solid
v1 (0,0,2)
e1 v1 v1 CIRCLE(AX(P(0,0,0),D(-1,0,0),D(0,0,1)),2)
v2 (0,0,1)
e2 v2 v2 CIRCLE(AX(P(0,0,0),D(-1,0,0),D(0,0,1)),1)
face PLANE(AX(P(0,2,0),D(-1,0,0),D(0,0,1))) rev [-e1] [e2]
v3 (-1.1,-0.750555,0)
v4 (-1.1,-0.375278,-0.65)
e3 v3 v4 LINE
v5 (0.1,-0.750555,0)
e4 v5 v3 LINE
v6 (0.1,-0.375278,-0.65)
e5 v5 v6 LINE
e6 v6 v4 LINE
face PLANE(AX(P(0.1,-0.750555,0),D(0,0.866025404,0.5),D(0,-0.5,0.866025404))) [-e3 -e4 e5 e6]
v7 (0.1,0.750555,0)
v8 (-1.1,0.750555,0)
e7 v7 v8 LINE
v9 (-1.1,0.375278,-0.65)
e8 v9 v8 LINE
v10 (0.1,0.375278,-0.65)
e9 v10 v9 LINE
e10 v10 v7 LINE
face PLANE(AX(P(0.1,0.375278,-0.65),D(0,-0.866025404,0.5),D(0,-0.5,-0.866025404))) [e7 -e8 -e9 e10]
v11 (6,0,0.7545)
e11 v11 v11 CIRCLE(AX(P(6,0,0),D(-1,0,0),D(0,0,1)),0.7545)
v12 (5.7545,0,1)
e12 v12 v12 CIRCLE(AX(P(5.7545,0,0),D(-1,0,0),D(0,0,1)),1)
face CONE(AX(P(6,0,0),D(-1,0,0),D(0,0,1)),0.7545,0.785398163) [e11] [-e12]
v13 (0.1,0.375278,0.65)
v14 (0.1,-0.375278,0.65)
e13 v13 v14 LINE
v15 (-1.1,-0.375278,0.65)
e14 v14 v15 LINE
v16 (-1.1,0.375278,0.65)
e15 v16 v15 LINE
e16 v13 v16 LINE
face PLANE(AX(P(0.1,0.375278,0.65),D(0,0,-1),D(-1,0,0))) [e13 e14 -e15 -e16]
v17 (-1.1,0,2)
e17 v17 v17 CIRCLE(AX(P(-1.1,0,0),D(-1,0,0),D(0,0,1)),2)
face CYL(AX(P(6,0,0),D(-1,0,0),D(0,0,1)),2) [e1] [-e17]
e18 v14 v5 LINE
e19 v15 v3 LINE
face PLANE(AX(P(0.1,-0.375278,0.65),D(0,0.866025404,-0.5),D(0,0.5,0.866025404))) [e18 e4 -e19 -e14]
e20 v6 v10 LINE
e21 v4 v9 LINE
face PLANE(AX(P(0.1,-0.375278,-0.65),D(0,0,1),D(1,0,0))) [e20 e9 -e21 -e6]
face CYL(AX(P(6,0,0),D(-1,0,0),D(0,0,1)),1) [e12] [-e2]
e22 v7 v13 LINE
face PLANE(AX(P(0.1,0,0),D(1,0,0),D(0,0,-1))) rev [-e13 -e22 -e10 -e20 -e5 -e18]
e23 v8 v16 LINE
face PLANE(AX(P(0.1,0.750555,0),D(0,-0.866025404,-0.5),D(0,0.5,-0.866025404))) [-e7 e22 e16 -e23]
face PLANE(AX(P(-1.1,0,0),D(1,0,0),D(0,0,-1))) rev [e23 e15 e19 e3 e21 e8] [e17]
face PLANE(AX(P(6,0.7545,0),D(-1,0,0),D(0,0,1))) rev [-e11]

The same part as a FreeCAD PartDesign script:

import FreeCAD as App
import Part
import Sketcher

V = App.Vector
Q = App.Units.Quantity

doc = App.newDocument("Part")
body = doc.addObject("PartDesign::Body", "Body")

# Sketch on XY plane
sketch1 = body.newObject("Sketcher::SketchObject", "Sketch")
sketch1.AttachmentSupport = (doc.getObject("XY_Plane"), [""])
sketch1.MapMode = "FlatFace"
sketch1.addGeometry([
    Part.LineSegment(V(-1.1, 2, 0), V(-1.1, 0, 0)),  # 0
    Part.LineSegment(V(-1.1, 0, 0), V(6, 0, 0)),  # 1
    Part.LineSegment(V(6, 0, 0), V(6, 0.75, 0)),  # 2
    Part.LineSegment(V(6, 0.75, 0), V(5.75, 1, 0)),  # 3
    Part.LineSegment(V(5.75, 1, 0), V(0, 1, 0)),  # 4
    Part.LineSegment(V(0, 1, 0), V(0, 2, 0)),  # 5
    Part.LineSegment(V(0, 2, 0), V(-1.1, 2, 0)),  # 6
], False)
sketch1.addConstraint([
    Sketcher.Constraint("Coincident", 0, 2, 1, 1),
    Sketcher.Constraint("Coincident", 1, 2, 2, 1),
    Sketcher.Constraint("Coincident", 2, 2, 3, 1),
    Sketcher.Constraint("Coincident", 3, 2, 4, 1),
    Sketcher.Constraint("Coincident", 4, 2, 5, 1),
    Sketcher.Constraint("Coincident", 5, 2, 6, 1),
    Sketcher.Constraint("Coincident", 6, 2, 0, 1),
    Sketcher.Constraint("Vertical", 0),
    Sketcher.Constraint("Horizontal", 1),
    Sketcher.Constraint("Vertical", 2),
    Sketcher.Constraint("Horizontal", 4),
    Sketcher.Constraint("Vertical", 5),
    Sketcher.Constraint("Horizontal", 6),
    Sketcher.Constraint("PointOnObject", 0, 2, -1),
    Sketcher.Constraint("PointOnObject", 4, 2, -2),
    Sketcher.Constraint("DistanceY", 0, 2, 0, 1, Q("2 mm")),
    Sketcher.Constraint("DistanceY", 5, 1, 5, 2, Q("1 mm")),
    Sketcher.Constraint("Angle", 3, Q("135 deg")),
    Sketcher.Constraint("DistanceX", 1, 1, 1, 2, Q("7.1 mm")),
    Sketcher.Constraint("DistanceX", 6, 2, 6, 1, Q("1.1 mm")),
    Sketcher.Constraint("DistanceX", 4, 2, 4, 1, Q("5.7545 mm")),
])
revolution = body.newObject("PartDesign::Revolution", "Revolution")
revolution.Profile = sketch1
revolution.ReferenceAxis = (sketch1, ["H_Axis"])
revolution.Angle = 360

# Sketch on YZ plane
sketch2 = body.newObject("Sketcher::SketchObject", "Sketch001")
sketch2.AttachmentSupport = (doc.getObject("YZ_Plane"), [""])
sketch2.MapMode = "FlatFace"
sketch2.AttachmentOffset = App.Placement(V(0, 0, -1.1), App.Rotation())
sketch2.addGeometry([
    Part.LineSegment(V(-0.4, 0.7, 0), V(-0.8, 0, 0)),  # 0
    Part.LineSegment(V(-0.8, 0, 0), V(-0.4, -0.7, 0)),  # 1
    Part.LineSegment(V(-0.4, -0.7, 0), V(0.4, -0.7, 0)),  # 2
    Part.LineSegment(V(0.4, -0.7, 0), V(0.8, 0, 0)),  # 3
    Part.LineSegment(V(0.8, 0, 0), V(0.4, 0.7, 0)),  # 4
    Part.LineSegment(V(0.4, 0.7, 0), V(-0.4, 0.7, 0)),  # 5
], False)
sketch2.addConstraint([
    Sketcher.Constraint("Coincident", 0, 2, 1, 1),
    Sketcher.Constraint("Coincident", 1, 2, 2, 1),
    Sketcher.Constraint("Coincident", 2, 2, 3, 1),
    Sketcher.Constraint("Coincident", 3, 2, 4, 1),
    Sketcher.Constraint("Coincident", 4, 2, 5, 1),
    Sketcher.Constraint("Coincident", 5, 2, 0, 1),
    Sketcher.Constraint("Horizontal", 2),
    Sketcher.Constraint("Horizontal", 5),
    Sketcher.Constraint("Symmetric", 0, 2, 3, 2, -1, 1),
    Sketcher.Constraint("Symmetric", 1, 2, 4, 2, -1, 1),
    Sketcher.Constraint("PointOnObject", 0, 2, -1),
    Sketcher.Constraint("Parallel", 0, 3),
    Sketcher.Constraint("Vertical", 2, 2, 4, 2),
    Sketcher.Constraint("Angle", 0, Q("-120 deg")),
    Sketcher.Constraint("DistanceY", 2, 2, 4, 2, Q("1.3 mm")),
    Sketcher.Constraint("DistanceX", 2, 1, 2, 2, Q("0.750555 mm")),
])
pocket1 = body.newObject("PartDesign::Pocket", "Pocket")
pocket1.Profile = sketch2
pocket1.Length = 1.2
pocket1.Reversed = True

doc.recompute()
